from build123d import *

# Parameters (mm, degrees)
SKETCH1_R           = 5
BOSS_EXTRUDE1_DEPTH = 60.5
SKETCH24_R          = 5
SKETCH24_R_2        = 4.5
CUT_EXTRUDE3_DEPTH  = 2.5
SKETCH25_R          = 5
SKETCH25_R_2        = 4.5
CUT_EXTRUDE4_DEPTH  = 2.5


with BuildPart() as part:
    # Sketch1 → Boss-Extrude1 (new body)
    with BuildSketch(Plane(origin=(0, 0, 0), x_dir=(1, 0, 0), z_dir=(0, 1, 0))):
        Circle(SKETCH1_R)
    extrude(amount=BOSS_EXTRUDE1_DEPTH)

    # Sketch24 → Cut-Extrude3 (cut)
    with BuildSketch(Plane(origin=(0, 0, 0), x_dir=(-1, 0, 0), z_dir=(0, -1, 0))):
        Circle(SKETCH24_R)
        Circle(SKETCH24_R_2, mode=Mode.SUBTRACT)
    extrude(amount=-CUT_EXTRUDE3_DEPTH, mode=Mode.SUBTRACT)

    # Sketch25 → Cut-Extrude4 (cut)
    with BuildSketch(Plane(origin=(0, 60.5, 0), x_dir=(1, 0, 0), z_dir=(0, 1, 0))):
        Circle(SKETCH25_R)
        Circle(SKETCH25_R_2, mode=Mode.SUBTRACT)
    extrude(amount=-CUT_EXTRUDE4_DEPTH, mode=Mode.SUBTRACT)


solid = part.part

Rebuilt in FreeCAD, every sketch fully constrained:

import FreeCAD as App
import Part
import Sketcher

V = App.Vector

doc = App.newDocument("Part")
body = doc.addObject("PartDesign::Body", "Body")

# Sketch on XZ plane
sketch1 = body.newObject("Sketcher::SketchObject", "Sketch")
sketch1.AttachmentSupport = (doc.getObject("XZ_Plane"), [""])
sketch1.MapMode = "FlatFace"
sketch1.addGeometry(Part.Circle(V(0, 0, 0), V(0, 0, 1), 5), False)
sketch1.addConstraint([
    Sketcher.Constraint("Coincident", 0, 3, -1, 1),
    Sketcher.Constraint("Diameter", 0, 10.0),
])
pad1 = body.newObject("PartDesign::Pad", "Pad")
pad1.Profile = sketch1
pad1.Length = 60.5
pad1.Reversed = True

# Sketch on XZ plane
sketch2 = body.newObject("Sketcher::SketchObject", "Sketch001")
sketch2.AttachmentSupport = (doc.getObject("XZ_Plane"), [""])
sketch2.MapMode = "FlatFace"
sketch2.addGeometry([
    Part.Circle(V(0, 0, 0), V(0, 0, 1), 5),
    Part.Circle(V(0, 0, 0), V(0, 0, 1), 4.5),
], False)
sketch2.addConstraint([
    Sketcher.Constraint("Coincident", 0, 3, -1, 1),
    Sketcher.Constraint("Coincident", 1, 3, -1, 1),
    Sketcher.Constraint("Diameter", 0, 10.0),
    Sketcher.Constraint("Diameter", 1, 9.0),
])
pocket1 = body.newObject("PartDesign::Pocket", "Pocket")
pocket1.Profile = sketch2
pocket1.Length = 2.5

# Sketch on XZ plane
sketch3 = body.newObject("Sketcher::SketchObject", "Sketch002")
sketch3.AttachmentSupport = (doc.getObject("XZ_Plane"), [""])
sketch3.MapMode = "FlatFace"
sketch3.AttachmentOffset = App.Placement(V(0, 0, -60.5), App.Rotation())
sketch3.addGeometry([
    Part.Circle(V(0, 0, 0), V(0, 0, 1), 5),
    Part.Circle(V(0, 0, 0), V(0, 0, 1), 4.5),
], False)
sketch3.addConstraint([
    Sketcher.Constraint("Coincident", 0, 3, -1, 1),
    Sketcher.Constraint("Coincident", 1, 3, -1, 1),
    Sketcher.Constraint("Diameter", 0, 10.0),
    Sketcher.Constraint("Diameter", 1, 9.0),
])
pocket2 = body.newObject("PartDesign::Pocket", "Pocket001")
pocket2.Profile = sketch3
pocket2.Length = 2.5
pocket2.Reversed = True

doc.recompute()
